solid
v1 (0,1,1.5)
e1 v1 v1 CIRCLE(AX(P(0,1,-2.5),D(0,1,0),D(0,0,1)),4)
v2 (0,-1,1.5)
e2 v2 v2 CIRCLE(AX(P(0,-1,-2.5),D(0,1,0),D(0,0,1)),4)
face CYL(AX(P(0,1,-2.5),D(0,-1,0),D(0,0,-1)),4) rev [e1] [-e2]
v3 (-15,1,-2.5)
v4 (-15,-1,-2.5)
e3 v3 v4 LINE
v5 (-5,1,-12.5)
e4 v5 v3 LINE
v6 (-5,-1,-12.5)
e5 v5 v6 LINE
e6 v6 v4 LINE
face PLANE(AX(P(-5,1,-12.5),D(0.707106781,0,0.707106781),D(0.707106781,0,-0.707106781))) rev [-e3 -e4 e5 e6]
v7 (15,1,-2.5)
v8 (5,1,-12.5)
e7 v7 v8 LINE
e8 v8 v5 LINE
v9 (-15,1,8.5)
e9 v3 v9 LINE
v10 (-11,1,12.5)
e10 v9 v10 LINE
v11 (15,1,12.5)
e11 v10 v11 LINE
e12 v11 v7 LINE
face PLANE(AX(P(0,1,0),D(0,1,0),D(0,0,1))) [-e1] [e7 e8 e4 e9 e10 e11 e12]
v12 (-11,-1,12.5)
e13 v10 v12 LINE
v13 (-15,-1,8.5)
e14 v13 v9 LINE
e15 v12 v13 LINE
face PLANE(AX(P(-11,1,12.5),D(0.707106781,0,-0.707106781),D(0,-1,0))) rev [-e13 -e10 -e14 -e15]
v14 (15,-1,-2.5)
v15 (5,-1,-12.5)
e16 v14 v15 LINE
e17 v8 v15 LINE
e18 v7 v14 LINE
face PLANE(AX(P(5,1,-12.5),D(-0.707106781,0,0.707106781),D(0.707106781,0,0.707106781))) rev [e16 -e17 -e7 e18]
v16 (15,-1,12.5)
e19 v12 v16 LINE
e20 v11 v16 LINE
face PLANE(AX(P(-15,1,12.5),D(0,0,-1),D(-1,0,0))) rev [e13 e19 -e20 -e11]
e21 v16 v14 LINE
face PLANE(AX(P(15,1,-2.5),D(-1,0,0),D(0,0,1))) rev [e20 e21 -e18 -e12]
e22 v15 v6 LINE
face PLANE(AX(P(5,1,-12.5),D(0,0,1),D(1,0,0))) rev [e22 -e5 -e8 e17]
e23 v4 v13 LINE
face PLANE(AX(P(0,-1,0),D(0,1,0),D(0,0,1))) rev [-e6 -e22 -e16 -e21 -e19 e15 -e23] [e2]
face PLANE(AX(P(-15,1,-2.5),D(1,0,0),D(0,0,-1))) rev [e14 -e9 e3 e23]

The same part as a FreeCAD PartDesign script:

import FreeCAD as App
import Part
import Sketcher

V = App.Vector
Q = App.Units.Quantity


def edges_at(feature, points):
    """Names of the edges that pass closest to the given points."""
    edges = feature.Shape.Edges
    near = lambda p: min(range(len(edges)), key=lambda i: edges[i].distToShape(Part.Vertex(*p))[0])
    return sorted({f"Edge{near(p) + 1}" for p in points})

doc = App.newDocument("Part")
body = doc.addObject("PartDesign::Body", "Body")

sketch1 = body.newObject("Sketcher::SketchObject", "Sketch")
sketch1.AttachmentSupport = (doc.getObject("XZ_Plane"), [""])
sketch1.MapMode = "FlatFace"
sketch1.addGeometry(Part.LineSegment(V(5, -12.5, 0), V(-5, -12.5, 0)), False)
sketch1.addGeometry(Part.LineSegment(V(-5, -12.5, 0), V(-15, -2.5, 0)), False)
sketch1.addGeometry(Part.LineSegment(V(-15, -2.5, 0), V(-15, 12.5, 0)), False)
sketch1.addGeometry(Part.LineSegment(V(-15, 12.5, 0), V(15, 12.5, 0)), False)
sketch1.addGeometry(Part.LineSegment(V(15, 12.5, 0), V(15, -2.5, 0)), False)
sketch1.addGeometry(Part.LineSegment(V(15, -2.5, 0), V(5, -12.5, 0)), False)
sketch1.addGeometry(Part.Circle(V(0, -2.5, 0), V(0, 0, 1), 4), False)
sketch1.addConstraint(Sketcher.Constraint("Coincident", 0, 2, 1, 1))
sketch1.addConstraint(Sketcher.Constraint("Coincident", 1, 2, 2, 1))
sketch1.addConstraint(Sketcher.Constraint("Coincident", 2, 2, 3, 1))
sketch1.addConstraint(Sketcher.Constraint("Coincident", 3, 2, 4, 1))
sketch1.addConstraint(Sketcher.Constraint("Coincident", 4, 2, 5, 1))
sketch1.addConstraint(Sketcher.Constraint("Coincident", 5, 2, 0, 1))
sketch1.addConstraint(Sketcher.Constraint("Horizontal", 0))
sketch1.addConstraint(Sketcher.Constraint("Vertical", 2))
sketch1.addConstraint(Sketcher.Constraint("Horizontal", 3))
sketch1.addConstraint(Sketcher.Constraint("Vertical", 4))
sketch1.addConstraint(Sketcher.Constraint("Symmetric", 1, 2, 4, 2, -2))
sketch1.addConstraint(Sketcher.Constraint("PointOnObject", 6, 3, -2))
sketch1.addConstraint(Sketcher.Constraint("Perpendicular", 1, 5))
sketch1.addConstraint(Sketcher.Constraint("Horizontal", 6, 3, 1, 2))
sketch1.addConstraint(Sketcher.Constraint("Equal", 1, 5))
sketch1.addConstraint(Sketcher.Constraint("Diameter", 6, Q("8 mm")))
sketch1.addConstraint(Sketcher.Constraint("DistanceX", 0, 2, 0, 1, Q("10 mm")))
sketch1.addConstraint(Sketcher.Constraint("DistanceX", 3, 1, 3, 2, Q("30 mm")))
sketch1.addConstraint(Sketcher.Constraint("DistanceY", 2, 1, 2, 2, Q("15 mm")))
sketch1.addConstraint(Sketcher.Constraint("DistanceY", 6, 3, -1, 1, Q("2.5 mm")))
pad1 = body.newObject("PartDesign::Pad", "Pad")
pad1.Profile = sketch1
pad1.Length = 2
pad1.Midplane = True
doc.recompute()

chamfer = body.newObject("PartDesign::Chamfer", "Chamfer")
chamfer.Base = (pad1, edges_at(pad1, [(-15, 0, 12.5)]))
chamfer.Size = 4

doc.recompute()
